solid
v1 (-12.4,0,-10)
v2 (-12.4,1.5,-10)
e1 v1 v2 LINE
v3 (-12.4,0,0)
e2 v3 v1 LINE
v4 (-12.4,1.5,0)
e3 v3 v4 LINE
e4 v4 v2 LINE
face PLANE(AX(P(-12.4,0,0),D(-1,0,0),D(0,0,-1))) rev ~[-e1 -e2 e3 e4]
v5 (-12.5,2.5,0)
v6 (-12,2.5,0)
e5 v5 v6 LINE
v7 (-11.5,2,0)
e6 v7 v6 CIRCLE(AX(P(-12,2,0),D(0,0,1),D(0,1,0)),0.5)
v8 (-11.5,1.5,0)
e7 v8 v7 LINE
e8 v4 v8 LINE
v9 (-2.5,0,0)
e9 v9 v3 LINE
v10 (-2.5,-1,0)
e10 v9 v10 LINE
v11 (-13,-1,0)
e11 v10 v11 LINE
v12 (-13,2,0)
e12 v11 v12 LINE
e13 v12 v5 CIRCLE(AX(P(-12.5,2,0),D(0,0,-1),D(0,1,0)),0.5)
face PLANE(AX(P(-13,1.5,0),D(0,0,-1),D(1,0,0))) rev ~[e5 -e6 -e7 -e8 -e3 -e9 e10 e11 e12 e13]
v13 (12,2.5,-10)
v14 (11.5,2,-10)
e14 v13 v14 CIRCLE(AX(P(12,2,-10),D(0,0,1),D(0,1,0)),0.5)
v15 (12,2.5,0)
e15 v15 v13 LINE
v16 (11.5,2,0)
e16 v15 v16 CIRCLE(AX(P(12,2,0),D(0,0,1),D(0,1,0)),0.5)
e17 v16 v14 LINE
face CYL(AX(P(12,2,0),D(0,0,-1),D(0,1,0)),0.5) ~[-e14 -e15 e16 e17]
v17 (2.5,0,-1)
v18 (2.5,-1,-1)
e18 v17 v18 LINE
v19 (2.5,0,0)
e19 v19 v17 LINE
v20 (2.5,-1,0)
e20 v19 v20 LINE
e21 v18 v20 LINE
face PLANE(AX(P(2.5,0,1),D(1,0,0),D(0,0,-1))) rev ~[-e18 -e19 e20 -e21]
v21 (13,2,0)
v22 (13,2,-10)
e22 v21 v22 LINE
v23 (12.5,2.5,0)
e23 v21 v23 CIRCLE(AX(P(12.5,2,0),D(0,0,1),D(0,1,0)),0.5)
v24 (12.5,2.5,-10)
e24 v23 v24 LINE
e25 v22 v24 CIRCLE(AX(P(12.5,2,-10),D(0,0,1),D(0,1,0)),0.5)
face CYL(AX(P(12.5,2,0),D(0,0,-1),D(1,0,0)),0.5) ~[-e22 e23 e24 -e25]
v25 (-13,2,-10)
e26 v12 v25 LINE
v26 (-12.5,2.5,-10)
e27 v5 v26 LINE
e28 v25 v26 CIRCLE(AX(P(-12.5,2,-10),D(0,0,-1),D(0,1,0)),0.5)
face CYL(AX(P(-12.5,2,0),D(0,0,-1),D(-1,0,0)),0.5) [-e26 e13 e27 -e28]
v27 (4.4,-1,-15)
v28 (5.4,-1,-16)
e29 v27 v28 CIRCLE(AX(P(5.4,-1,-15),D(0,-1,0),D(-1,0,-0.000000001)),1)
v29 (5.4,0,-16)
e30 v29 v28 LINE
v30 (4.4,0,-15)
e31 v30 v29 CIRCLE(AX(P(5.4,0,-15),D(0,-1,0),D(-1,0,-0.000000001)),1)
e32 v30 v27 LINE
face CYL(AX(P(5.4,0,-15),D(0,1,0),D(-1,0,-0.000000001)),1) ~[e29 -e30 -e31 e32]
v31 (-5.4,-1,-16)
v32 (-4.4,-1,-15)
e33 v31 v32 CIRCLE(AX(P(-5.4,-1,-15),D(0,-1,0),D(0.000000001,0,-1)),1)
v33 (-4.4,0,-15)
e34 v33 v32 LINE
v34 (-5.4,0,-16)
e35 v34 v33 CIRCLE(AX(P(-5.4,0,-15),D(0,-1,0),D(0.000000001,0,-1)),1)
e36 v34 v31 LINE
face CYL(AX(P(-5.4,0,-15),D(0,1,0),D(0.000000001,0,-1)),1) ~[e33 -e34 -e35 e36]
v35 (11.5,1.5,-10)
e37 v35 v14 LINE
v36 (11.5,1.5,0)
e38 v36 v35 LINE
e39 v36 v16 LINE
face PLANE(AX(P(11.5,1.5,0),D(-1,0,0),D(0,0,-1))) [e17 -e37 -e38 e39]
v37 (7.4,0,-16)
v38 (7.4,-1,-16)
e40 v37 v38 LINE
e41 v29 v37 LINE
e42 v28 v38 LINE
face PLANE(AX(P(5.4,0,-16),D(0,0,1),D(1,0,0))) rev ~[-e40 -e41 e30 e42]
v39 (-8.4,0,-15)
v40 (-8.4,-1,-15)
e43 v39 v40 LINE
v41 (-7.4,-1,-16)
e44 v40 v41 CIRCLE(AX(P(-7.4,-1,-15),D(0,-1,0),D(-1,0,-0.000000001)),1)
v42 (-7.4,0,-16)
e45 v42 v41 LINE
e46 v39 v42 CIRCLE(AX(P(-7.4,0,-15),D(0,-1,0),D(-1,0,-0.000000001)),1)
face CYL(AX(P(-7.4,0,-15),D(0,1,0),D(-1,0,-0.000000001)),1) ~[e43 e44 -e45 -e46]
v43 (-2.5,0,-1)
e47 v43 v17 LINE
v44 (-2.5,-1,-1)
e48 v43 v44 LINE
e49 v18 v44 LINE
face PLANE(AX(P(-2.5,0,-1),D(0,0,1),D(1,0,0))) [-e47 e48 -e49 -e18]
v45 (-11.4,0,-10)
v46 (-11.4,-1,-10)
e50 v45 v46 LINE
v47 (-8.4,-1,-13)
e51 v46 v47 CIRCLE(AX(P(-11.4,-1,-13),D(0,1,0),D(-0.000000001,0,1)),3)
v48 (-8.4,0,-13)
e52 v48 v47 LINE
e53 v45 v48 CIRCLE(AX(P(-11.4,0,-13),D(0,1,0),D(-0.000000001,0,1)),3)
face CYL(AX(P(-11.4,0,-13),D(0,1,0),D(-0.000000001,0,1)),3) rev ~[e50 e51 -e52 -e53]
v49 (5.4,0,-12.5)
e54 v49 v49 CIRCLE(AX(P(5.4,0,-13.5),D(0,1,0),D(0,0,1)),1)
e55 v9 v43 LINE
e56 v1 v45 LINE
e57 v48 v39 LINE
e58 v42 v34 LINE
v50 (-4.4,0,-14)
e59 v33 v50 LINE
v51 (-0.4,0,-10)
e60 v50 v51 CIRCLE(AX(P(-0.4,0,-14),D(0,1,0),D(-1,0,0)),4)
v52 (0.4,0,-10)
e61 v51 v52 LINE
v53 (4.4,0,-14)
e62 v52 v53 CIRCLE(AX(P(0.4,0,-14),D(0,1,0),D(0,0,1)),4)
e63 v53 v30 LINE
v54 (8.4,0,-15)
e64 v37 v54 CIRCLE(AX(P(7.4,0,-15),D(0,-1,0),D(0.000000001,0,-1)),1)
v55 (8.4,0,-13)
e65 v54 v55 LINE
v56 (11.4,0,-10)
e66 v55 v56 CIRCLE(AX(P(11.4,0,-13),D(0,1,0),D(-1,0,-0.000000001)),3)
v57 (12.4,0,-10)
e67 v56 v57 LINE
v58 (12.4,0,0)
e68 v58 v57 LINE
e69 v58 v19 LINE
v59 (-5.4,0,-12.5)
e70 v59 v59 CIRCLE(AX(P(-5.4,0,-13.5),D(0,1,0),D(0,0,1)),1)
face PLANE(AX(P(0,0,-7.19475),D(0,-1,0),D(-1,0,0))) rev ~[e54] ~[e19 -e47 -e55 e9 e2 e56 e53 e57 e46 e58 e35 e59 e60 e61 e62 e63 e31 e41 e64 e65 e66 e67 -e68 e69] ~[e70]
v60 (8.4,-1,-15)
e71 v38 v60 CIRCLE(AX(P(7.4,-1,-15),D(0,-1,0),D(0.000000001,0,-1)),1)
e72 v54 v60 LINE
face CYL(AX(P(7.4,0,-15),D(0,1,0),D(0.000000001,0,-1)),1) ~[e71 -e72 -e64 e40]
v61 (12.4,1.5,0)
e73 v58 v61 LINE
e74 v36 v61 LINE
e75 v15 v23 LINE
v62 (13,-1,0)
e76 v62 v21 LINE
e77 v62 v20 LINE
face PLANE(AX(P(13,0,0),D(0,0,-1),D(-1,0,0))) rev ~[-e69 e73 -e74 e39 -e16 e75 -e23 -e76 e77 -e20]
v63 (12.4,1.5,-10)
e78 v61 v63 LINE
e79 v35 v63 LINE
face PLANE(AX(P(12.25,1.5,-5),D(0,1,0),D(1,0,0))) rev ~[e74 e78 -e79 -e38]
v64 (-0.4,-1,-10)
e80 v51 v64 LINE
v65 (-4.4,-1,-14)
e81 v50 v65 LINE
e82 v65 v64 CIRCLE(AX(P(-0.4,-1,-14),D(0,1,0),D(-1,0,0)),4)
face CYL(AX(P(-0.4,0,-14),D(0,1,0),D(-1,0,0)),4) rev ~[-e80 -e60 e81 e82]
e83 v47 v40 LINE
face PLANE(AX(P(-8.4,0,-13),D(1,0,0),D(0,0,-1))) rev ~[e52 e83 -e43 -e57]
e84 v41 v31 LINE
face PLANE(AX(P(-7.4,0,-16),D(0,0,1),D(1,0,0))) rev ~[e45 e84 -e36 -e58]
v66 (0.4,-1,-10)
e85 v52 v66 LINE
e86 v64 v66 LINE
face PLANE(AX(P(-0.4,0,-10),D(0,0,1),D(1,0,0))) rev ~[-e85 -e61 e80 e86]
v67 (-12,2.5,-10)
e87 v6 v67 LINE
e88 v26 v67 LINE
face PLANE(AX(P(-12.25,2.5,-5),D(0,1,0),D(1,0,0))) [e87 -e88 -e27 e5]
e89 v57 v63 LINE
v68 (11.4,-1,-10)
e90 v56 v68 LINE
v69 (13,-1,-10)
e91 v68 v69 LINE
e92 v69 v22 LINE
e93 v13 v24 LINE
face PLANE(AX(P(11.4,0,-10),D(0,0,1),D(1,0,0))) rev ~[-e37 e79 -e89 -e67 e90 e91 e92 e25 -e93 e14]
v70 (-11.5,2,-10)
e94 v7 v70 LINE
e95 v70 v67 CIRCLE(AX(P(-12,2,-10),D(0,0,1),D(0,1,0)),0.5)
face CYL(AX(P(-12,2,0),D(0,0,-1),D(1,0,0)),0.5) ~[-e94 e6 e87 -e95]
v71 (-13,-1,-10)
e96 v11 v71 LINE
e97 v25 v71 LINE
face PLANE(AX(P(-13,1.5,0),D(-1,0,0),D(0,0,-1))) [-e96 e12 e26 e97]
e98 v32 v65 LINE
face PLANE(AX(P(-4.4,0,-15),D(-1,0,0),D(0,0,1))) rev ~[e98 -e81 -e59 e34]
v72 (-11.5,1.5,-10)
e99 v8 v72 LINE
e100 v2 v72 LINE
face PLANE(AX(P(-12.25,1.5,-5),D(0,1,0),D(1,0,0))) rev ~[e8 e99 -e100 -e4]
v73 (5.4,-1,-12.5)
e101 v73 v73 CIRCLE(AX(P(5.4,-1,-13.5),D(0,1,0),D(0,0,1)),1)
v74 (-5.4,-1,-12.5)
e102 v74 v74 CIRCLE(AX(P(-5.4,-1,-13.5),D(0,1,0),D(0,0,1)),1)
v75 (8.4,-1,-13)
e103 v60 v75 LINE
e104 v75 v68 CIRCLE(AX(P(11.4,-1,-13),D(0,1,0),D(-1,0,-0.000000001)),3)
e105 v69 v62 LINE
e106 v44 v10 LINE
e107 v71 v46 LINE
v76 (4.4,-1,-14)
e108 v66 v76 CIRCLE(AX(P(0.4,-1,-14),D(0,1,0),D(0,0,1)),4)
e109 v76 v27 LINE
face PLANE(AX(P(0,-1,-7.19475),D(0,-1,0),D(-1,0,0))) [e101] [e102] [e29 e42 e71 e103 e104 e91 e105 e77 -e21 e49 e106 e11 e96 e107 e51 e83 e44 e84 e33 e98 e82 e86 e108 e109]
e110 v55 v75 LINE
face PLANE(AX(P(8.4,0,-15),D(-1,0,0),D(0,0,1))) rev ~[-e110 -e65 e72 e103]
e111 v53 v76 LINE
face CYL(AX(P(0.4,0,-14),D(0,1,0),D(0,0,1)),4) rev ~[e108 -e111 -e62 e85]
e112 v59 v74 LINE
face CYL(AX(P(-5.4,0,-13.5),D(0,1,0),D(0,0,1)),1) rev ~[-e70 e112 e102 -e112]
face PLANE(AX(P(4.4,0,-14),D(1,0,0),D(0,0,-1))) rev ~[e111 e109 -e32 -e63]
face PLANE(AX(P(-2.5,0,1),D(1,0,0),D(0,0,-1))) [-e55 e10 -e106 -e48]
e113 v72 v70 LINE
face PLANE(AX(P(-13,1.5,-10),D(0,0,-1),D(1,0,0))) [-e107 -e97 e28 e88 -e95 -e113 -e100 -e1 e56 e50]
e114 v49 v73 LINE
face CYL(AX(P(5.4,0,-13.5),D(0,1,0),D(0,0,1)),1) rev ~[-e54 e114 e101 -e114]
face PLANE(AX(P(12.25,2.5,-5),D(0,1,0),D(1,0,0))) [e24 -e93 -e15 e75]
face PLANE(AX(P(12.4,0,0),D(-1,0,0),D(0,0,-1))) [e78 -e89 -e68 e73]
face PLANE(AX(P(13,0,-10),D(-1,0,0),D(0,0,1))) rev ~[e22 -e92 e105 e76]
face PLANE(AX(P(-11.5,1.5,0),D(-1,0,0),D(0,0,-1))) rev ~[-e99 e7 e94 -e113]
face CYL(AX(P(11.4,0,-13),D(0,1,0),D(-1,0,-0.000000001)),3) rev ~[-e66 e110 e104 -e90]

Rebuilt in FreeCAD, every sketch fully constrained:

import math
import FreeCAD as App
import Part
import Sketcher

V = App.Vector
Q = App.Units.Quantity


def edges_at(feature, points):
    """Names of the edges that pass closest to the given points."""
    edges = feature.Shape.Edges
    near = lambda p: min(range(len(edges)), key=lambda i: edges[i].distToShape(Part.Vertex(*p))[0])
    return sorted({f"Edge{near(p) + 1}" for p in points})

doc = App.newDocument("Part")
params = doc.addObject("Spreadsheet::Sheet", "Params")
for row, (alias, value) in enumerate([
    ("sketch1_radius", "1 mm"),
    ("sketch1_radius2", "3 mm"),
    ("sketch1_radius3", "4 mm"),
    ("sketch1_width", "2 mm"),
    ("sketch1_width2", "26 mm"),
    ("pad1_length", "1 mm"),
    ("sketch2_diameter", "2 mm"),
    ("sketch3_width", "5 mm"),
    ("sketch3_height", "2 mm"),
    ("sketch4_height", "10 mm"),
    ("sketch4_width", "0.6 mm"),
    ("pad2_length", "1.5 mm"),
    ("sketch5_height", "10 mm"),
    ("sketch5_width", "1.5 mm"),
    ("pad3_length", "1 mm"),
    ("fillet_radius", "0.5 mm"),
], start=1):
    params.set(f"A{row}", alias)
    params.set(f"B{row}", "=" + value)
    params.setAlias(f"B{row}", alias)

body = doc.addObject("PartDesign::Body", "Body")

sketch1 = doc.addObject("Sketcher::SketchObject", "Sketch")
body.addObject(sketch1)
sketch1.AttachmentSupport = (doc.XZ_Plane, [""])
sketch1.MapMode = "FlatFace"
sketch1.addGeometry([
    Part.LineSegment(V(-5.4, -16, 0), V(-7.4, -16, 0)),
    Part.ArcOfCircle(Part.Circle(V(-7.4, -15, 0), V(0, 0, 1), 1), math.radians(-180), math.radians(-90)),
    Part.LineSegment(V(-8.4, -15, 0), V(-8.4, -13, 0)),
    Part.ArcOfCircle(Part.Circle(V(-11.4, -13, 0), V(0, 0, 1), 3), math.radians(0), math.radians(90)),
    Part.LineSegment(V(-11.4, -10, 0), V(-13, -10, 0)),
    Part.LineSegment(V(-13, -10, 0), V(-13, 0, 0)),
    Part.LineSegment(V(-13, 0, 0), V(13, 0, 0)),
    Part.LineSegment(V(13, 0, 0), V(13, -10, 0)),
    Part.LineSegment(V(13, -10, 0), V(11.4, -10, 0)),
    Part.ArcOfCircle(Part.Circle(V(11.4, -13, 0), V(0, 0, 1), 3), math.radians(90), math.radians(180)),
    Part.LineSegment(V(8.4, -13, 0), V(8.4, -15, 0)),
    Part.ArcOfCircle(Part.Circle(V(7.4, -15, 0), V(0, 0, 1), 1), math.radians(-90), math.radians(0)),
    Part.LineSegment(V(7.4, -16, 0), V(5.4, -16, 0)),
    Part.ArcOfCircle(Part.Circle(V(5.4, -15, 0), V(0, 0, 1), 1), math.radians(-180), math.radians(-90)),
    Part.LineSegment(V(4.4, -15, 0), V(4.4, -14, 0)),
    Part.ArcOfCircle(Part.Circle(V(0.4, -14, 0), V(0, 0, 1), 4), math.radians(0), math.radians(90)),
    Part.LineSegment(V(0.4, -10, 0), V(-0.4, -10, 0)),
    Part.ArcOfCircle(Part.Circle(V(-0.4, -14, 0), V(0, 0, 1), 4), math.radians(90), math.radians(180)),
    Part.LineSegment(V(-4.4, -14, 0), V(-4.4, -15, 0)),
    Part.ArcOfCircle(Part.Circle(V(-5.4, -15, 0), V(0, 0, 1), 1), math.radians(-90), math.radians(0)),
], False)
sketch1.addConstraint([
    Sketcher.Constraint("Tangent", 0, 2, 1, 2),
    Sketcher.Constraint("Tangent", 1, 1, 2, 1),
    Sketcher.Constraint("Tangent", 2, 2, 3, 1),
    Sketcher.Constraint("Tangent", 3, 2, 4, 1),
    Sketcher.Constraint("Coincident", 4, 2, 5, 1),
    Sketcher.Constraint("Coincident", 5, 2, 6, 1),
    Sketcher.Constraint("Coincident", 6, 2, 7, 1),
    Sketcher.Constraint("Coincident", 7, 2, 8, 1),
    Sketcher.Constraint("Tangent", 8, 2, 9, 1),
    Sketcher.Constraint("Tangent", 9, 2, 10, 1),
    Sketcher.Constraint("Tangent", 10, 2, 11, 2),
    Sketcher.Constraint("Tangent", 11, 1, 12, 1),
    Sketcher.Constraint("Tangent", 12, 2, 13, 2),
    Sketcher.Constraint("Tangent", 13, 1, 14, 1),
    Sketcher.Constraint("Tangent", 14, 2, 15, 1),
    Sketcher.Constraint("Tangent", 15, 2, 16, 1),
    Sketcher.Constraint("Tangent", 16, 2, 17, 1),
    Sketcher.Constraint("Tangent", 17, 2, 18, 1),
    Sketcher.Constraint("Tangent", 18, 2, 19, 2),
    Sketcher.Constraint("Tangent", 19, 1, 0, 1),
    Sketcher.Constraint("Horizontal", 0),
    Sketcher.Constraint("Vertical", 2),
    Sketcher.Constraint("Horizontal", 4),
    Sketcher.Constraint("Vertical", 5),
    Sketcher.Constraint("Horizontal", 6),
    Sketcher.Constraint("Vertical", 7),
    Sketcher.Constraint("Horizontal", 8),
    Sketcher.Constraint("Vertical", 10),
    Sketcher.Constraint("Horizontal", 12),
    Sketcher.Constraint("Vertical", 14),
    Sketcher.Constraint("Horizontal", 16),
    Sketcher.Constraint("Vertical", 18),
    Sketcher.Constraint("Equal", 3, 9),
    Sketcher.Constraint("Equal", 1, 11),
    Sketcher.Constraint("Equal", 11, 13),
    Sketcher.Constraint("Equal", 15, 17),
    Sketcher.Constraint("Equal", 13, 19),
    Sketcher.Constraint("Symmetric", 5, 2, 6, 2, -1, 1),
    Sketcher.Constraint("Symmetric", 3, 3, 9, 3, -2),
    Sketcher.Constraint("Symmetric", 13, 3, 19, 3, -2),
    Sketcher.Constraint("Horizontal", 8, 2, 15, 2),
    Sketcher.Constraint("Equal", 12, 2),
    Sketcher.Constraint("Radius", 1, Q("1 mm")),
    Sketcher.Constraint("Radius", 3, Q("3 mm")),
    Sketcher.Constraint("Radius", 15, Q("4 mm")),
    Sketcher.Constraint("DistanceX", 0, 2, 0, 1, Q("2 mm")),
    Sketcher.Constraint("DistanceX", 6, 1, 6, 2, Q("26 mm")),
    Sketcher.Constraint("DistanceY", 5, 1, 5, 2, Q("10 mm")),
    Sketcher.Constraint("DistanceX", 4, 2, 4, 1, Q("1.6 mm")),
])
sketch1.setExpression("Constraints[42]", "Params.sketch1_radius")
sketch1.setExpression("Constraints[43]", "Params.sketch1_radius2")
sketch1.setExpression("Constraints[44]", "Params.sketch1_radius3")
sketch1.setExpression("Constraints[45]", "Params.sketch1_width")
sketch1.setExpression("Constraints[46]", "Params.sketch1_width2")
pad1 = doc.addObject("PartDesign::Pad", "Pad")
body.addObject(pad1)
pad1.Profile = sketch1
pad1.setExpression("Length", "Params.pad1_length")

sketch2 = doc.addObject("Sketcher::SketchObject", "Sketch001")
body.addObject(sketch2)
sketch2.AttachmentSupport = (doc.XZ_Plane, [""])
sketch2.MapMode = "FlatFace"
sketch2.addGeometry([
    Part.Circle(V(-5.4, -13.5, 0), V(0, 0, 1), 1),
    Part.Circle(V(5.4, -13.5, 0), V(0, 0, 1), 1),
], False)
sketch2.addConstraint([
    Sketcher.Constraint("Equal", 0, 1),
    Sketcher.Constraint("Symmetric", 0, 3, 1, 3, -2),
    Sketcher.Constraint("Diameter", 0, Q("2 mm")),
    Sketcher.Constraint("DistanceX", 0, 3, -1, 1, Q("5.4 mm")),
    Sketcher.Constraint("DistanceY", 0, 3, -1, 1, Q("13.5 mm")),
])
sketch2.setExpression("Constraints[2]", "Params.sketch2_diameter")
pocket1 = doc.addObject("PartDesign::Pocket", "Pocket")
body.addObject(pocket1)
pocket1.Profile = sketch2
pocket1.Type = "ThroughAll"
pocket1.Reversed = True

sketch3 = doc.addObject("Sketcher::SketchObject", "Sketch002")
body.addObject(sketch3)
sketch3.AttachmentSupport = (doc.XZ_Plane, [""])
sketch3.MapMode = "FlatFace"
sketch3.addGeometry([
    Part.LineSegment(V(-2.5, -1, 0), V(-2.5, 1, 0)),
    Part.LineSegment(V(-2.5, 1, 0), V(2.5, 1, 0)),
    Part.LineSegment(V(2.5, 1, 0), V(2.5, -1, 0)),
    Part.LineSegment(V(2.5, -1, 0), V(-2.5, -1, 0)),
], False)
sketch3.addConstraint([
    Sketcher.Constraint("Coincident", 0, 2, 1, 1),
    Sketcher.Constraint("Coincident", 1, 2, 2, 1),
    Sketcher.Constraint("Coincident", 2, 2, 3, 1),
    Sketcher.Constraint("Coincident", 3, 2, 0, 1),
    Sketcher.Constraint("Vertical", 0),
    Sketcher.Constraint("Horizontal", 1),
    Sketcher.Constraint("Vertical", 2),
    Sketcher.Constraint("Horizontal", 3),
    Sketcher.Constraint("Symmetric", 0, 2, 2, 2, -1, 1),
    Sketcher.Constraint("DistanceX", 1, 1, 1, 2, Q("5 mm")),
    Sketcher.Constraint("DistanceY", 0, 1, 0, 2, Q("2 mm")),
])
sketch3.setExpression("Constraints[9]", "Params.sketch3_width")
sketch3.setExpression("Constraints[10]", "Params.sketch3_height")
pocket2 = doc.addObject("PartDesign::Pocket", "Pocket001")
body.addObject(pocket2)
pocket2.Profile = sketch3
pocket2.Type = "ThroughAll"
pocket2.Reversed = True

sketch4 = doc.addObject("Sketcher::SketchObject", "Sketch003")
body.addObject(sketch4)
sketch4.AttachmentSupport = (doc.XZ_Plane, [""])
sketch4.MapMode = "FlatFace"
sketch4.addGeometry([
    Part.LineSegment(V(-13, -10, 0), V(-13, 0, 0)),
    Part.LineSegment(V(-13, 0, 0), V(-12.4, 0, 0)),
    Part.LineSegment(V(-12.4, 0, 0), V(-12.4, -10, 0)),
    Part.LineSegment(V(-12.4, -10, 0), V(-13, -10, 0)),
    Part.LineSegment(V(12.4, -10, 0), V(12.4, 0, 0)),
    Part.LineSegment(V(12.4, 0, 0), V(13, 0, 0)),
    Part.LineSegment(V(13, 0, 0), V(13, -10, 0)),
    Part.LineSegment(V(13, -10, 0), V(12.4, -10, 0)),
], False)
sketch4.addConstraint([
    Sketcher.Constraint("Coincident", 0, 2, 1, 1),
    Sketcher.Constraint("Coincident", 1, 2, 2, 1),
    Sketcher.Constraint("Coincident", 2, 2, 3, 1),
    Sketcher.Constraint("Coincident", 3, 2, 0, 1),
    Sketcher.Constraint("Coincident", 4, 2, 5, 1),
    Sketcher.Constraint("Coincident", 5, 2, 6, 1),
    Sketcher.Constraint("Coincident", 6, 2, 7, 1),
    Sketcher.Constraint("Coincident", 7, 2, 4, 1),
    Sketcher.Constraint("Vertical", 0),
    Sketcher.Constraint("Horizontal", 1),
    Sketcher.Constraint("Vertical", 2),
    Sketcher.Constraint("Horizontal", 3),
    Sketcher.Constraint("Vertical", 4),
    Sketcher.Constraint("Horizontal", 5),
    Sketcher.Constraint("Vertical", 6),
    Sketcher.Constraint("Horizontal", 7),
    Sketcher.Constraint("Symmetric", 1, 2, 4, 2, -1, 1),
    Sketcher.Constraint("Symmetric", 0, 2, 5, 2, -2),
    Sketcher.Constraint("Horizontal", 3, 2, 6, 2),
    Sketcher.Constraint("DistanceY", 0, 1, 0, 2, Q("10 mm")),
    Sketcher.Constraint("DistanceX", 1, 1, 1, 2, Q("0.6 mm")),
    Sketcher.Constraint("DistanceX", 0, 2, -1, 1, Q("13 mm")),
])
sketch4.setExpression("Constraints[19]", "Params.sketch4_height")
sketch4.setExpression("Constraints[20]", "Params.sketch4_width")
pad2 = doc.addObject("PartDesign::Pad", "Pad001")
body.addObject(pad2)
pad2.Profile = sketch4
pad2.setExpression("Length", "Params.pad2_length")
pad2.Reversed = True

sketch5 = doc.addObject("Sketcher::SketchObject", "Sketch004")
body.addObject(sketch5)
sketch5.AttachmentSupport = (doc.XZ_Plane, [""])
sketch5.MapMode = "FlatFace"
sketch5.AttachmentOffset = App.Placement(V(0, 0, -1.5), App.Rotation())
sketch5.addGeometry([
    Part.LineSegment(V(-13, -10, 0), V(-13, 0, 0)),
    Part.LineSegment(V(-13, 0, 0), V(-11.5, 0, 0)),
    Part.LineSegment(V(-11.5, 0, 0), V(-11.5, -10, 0)),
    Part.LineSegment(V(-11.5, -10, 0), V(-13, -10, 0)),
    Part.LineSegment(V(11.5, -10, 0), V(11.5, 0, 0)),
    Part.LineSegment(V(11.5, 0, 0), V(13, 0, 0)),
    Part.LineSegment(V(13, 0, 0), V(13, -10, 0)),
    Part.LineSegment(V(13, -10, 0), V(11.5, -10, 0)),
], False)
sketch5.addConstraint([
    Sketcher.Constraint("Coincident", 0, 2, 1, 1),
    Sketcher.Constraint("Coincident", 1, 2, 2, 1),
    Sketcher.Constraint("Coincident", 2, 2, 3, 1),
    Sketcher.Constraint("Coincident", 3, 2, 0, 1),
    Sketcher.Constraint("Coincident", 4, 2, 5, 1),
    Sketcher.Constraint("Coincident", 5, 2, 6, 1),
    Sketcher.Constraint("Coincident", 6, 2, 7, 1),
    Sketcher.Constraint("Coincident", 7, 2, 4, 1),
    Sketcher.Constraint("Vertical", 0),
    Sketcher.Constraint("Horizontal", 1),
    Sketcher.Constraint("Vertical", 2),
    Sketcher.Constraint("Horizontal", 3),
    Sketcher.Constraint("Vertical", 4),
    Sketcher.Constraint("Horizontal", 5),
    Sketcher.Constraint("Vertical", 6),
    Sketcher.Constraint("Horizontal", 7),
    Sketcher.Constraint("Symmetric", 1, 2, 4, 2, -1, 1),
    Sketcher.Constraint("Symmetric", 0, 2, 5, 2, -2),
    Sketcher.Constraint("Horizontal", 3, 2, 6, 2),
    Sketcher.Constraint("DistanceY", 0, 1, 0, 2, Q("10 mm")),
    Sketcher.Constraint("DistanceX", 1, 1, 1, 2, Q("1.5 mm")),
    Sketcher.Constraint("DistanceX", 0, 2, -1, 1, Q("13 mm")),
])
sketch5.setExpression("Constraints[19]", "Params.sketch5_height")
sketch5.setExpression("Constraints[20]", "Params.sketch5_width")
pad3 = doc.addObject("PartDesign::Pad", "Pad002")
body.addObject(pad3)
pad3.Profile = sketch5
pad3.setExpression("Length", "Params.pad3_length")
pad3.Reversed = True
doc.recompute()

fillet = doc.addObject("PartDesign::Fillet", "Fillet")
body.addObject(fillet)
fillet.Base = (pad3, edges_at(pad3, [
    (-13, 2.5, -5),
    (-11.5, 2.5, -5),
    (13, 2.5, -5),
    (11.5, 2.5, -5),
]))
fillet.setExpression("Radius", "Params.fillet_radius")

doc.recompute()
